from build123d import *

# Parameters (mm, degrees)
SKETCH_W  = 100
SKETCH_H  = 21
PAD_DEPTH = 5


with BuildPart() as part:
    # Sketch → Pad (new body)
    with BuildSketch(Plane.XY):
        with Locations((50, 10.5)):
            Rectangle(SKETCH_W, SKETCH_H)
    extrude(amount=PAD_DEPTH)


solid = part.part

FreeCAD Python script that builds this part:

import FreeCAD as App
import Part
import Sketcher
from FreeCAD import Vector
Q = App.Units.Quantity


def add_polygon(sketch, points):
    """Adds a closed chain of lines whose ends are joined by coincident constraints."""
    first, n = sketch.GeometryCount, len(points)
    for a, b in zip(points, points[1:] + points[:1]):
        sketch.addGeometry(Part.LineSegment(App.Vector(*a, 0), App.Vector(*b, 0)), False)
    for i in range(n):
        sketch.addConstraint(Sketcher.Constraint("Coincident", first + i, 2, first + (i + 1) % n, 1))

doc = App.newDocument("Part")
body = doc.addObject("PartDesign::Body", "Body")

# Sketch on XY plane
sketch1 = body.newObject("Sketcher::SketchObject", "Sketch")
sketch1.AttachmentSupport = (doc.getObject("XY_Plane"), [""])
sketch1.MapMode = "FlatFace"
add_polygon(sketch1, [(0, 21), (0, 0), (100, 0), (100, 21)])  # lines 0-3
sketch1.addConstraint(Sketcher.Constraint("Vertical", 0))
sketch1.addConstraint(Sketcher.Constraint("Horizontal", 1))
sketch1.addConstraint(Sketcher.Constraint("Vertical", 2))
sketch1.addConstraint(Sketcher.Constraint("Horizontal", 3))
sketch1.addConstraint(Sketcher.Constraint("Coincident", 0, 2, -1, 1))
sketch1.addConstraint(Sketcher.Constraint("DistanceX", 1, 1, 1, 2, Q("100 mm")))
sketch1.addConstraint(Sketcher.Constraint("DistanceY", 0, 2, 0, 1, Q("21 mm")))
pad1 = body.newObject("PartDesign::Pad", "Pad")
pad1.Profile = sketch1
pad1.Length = 5

doc.recompute()
